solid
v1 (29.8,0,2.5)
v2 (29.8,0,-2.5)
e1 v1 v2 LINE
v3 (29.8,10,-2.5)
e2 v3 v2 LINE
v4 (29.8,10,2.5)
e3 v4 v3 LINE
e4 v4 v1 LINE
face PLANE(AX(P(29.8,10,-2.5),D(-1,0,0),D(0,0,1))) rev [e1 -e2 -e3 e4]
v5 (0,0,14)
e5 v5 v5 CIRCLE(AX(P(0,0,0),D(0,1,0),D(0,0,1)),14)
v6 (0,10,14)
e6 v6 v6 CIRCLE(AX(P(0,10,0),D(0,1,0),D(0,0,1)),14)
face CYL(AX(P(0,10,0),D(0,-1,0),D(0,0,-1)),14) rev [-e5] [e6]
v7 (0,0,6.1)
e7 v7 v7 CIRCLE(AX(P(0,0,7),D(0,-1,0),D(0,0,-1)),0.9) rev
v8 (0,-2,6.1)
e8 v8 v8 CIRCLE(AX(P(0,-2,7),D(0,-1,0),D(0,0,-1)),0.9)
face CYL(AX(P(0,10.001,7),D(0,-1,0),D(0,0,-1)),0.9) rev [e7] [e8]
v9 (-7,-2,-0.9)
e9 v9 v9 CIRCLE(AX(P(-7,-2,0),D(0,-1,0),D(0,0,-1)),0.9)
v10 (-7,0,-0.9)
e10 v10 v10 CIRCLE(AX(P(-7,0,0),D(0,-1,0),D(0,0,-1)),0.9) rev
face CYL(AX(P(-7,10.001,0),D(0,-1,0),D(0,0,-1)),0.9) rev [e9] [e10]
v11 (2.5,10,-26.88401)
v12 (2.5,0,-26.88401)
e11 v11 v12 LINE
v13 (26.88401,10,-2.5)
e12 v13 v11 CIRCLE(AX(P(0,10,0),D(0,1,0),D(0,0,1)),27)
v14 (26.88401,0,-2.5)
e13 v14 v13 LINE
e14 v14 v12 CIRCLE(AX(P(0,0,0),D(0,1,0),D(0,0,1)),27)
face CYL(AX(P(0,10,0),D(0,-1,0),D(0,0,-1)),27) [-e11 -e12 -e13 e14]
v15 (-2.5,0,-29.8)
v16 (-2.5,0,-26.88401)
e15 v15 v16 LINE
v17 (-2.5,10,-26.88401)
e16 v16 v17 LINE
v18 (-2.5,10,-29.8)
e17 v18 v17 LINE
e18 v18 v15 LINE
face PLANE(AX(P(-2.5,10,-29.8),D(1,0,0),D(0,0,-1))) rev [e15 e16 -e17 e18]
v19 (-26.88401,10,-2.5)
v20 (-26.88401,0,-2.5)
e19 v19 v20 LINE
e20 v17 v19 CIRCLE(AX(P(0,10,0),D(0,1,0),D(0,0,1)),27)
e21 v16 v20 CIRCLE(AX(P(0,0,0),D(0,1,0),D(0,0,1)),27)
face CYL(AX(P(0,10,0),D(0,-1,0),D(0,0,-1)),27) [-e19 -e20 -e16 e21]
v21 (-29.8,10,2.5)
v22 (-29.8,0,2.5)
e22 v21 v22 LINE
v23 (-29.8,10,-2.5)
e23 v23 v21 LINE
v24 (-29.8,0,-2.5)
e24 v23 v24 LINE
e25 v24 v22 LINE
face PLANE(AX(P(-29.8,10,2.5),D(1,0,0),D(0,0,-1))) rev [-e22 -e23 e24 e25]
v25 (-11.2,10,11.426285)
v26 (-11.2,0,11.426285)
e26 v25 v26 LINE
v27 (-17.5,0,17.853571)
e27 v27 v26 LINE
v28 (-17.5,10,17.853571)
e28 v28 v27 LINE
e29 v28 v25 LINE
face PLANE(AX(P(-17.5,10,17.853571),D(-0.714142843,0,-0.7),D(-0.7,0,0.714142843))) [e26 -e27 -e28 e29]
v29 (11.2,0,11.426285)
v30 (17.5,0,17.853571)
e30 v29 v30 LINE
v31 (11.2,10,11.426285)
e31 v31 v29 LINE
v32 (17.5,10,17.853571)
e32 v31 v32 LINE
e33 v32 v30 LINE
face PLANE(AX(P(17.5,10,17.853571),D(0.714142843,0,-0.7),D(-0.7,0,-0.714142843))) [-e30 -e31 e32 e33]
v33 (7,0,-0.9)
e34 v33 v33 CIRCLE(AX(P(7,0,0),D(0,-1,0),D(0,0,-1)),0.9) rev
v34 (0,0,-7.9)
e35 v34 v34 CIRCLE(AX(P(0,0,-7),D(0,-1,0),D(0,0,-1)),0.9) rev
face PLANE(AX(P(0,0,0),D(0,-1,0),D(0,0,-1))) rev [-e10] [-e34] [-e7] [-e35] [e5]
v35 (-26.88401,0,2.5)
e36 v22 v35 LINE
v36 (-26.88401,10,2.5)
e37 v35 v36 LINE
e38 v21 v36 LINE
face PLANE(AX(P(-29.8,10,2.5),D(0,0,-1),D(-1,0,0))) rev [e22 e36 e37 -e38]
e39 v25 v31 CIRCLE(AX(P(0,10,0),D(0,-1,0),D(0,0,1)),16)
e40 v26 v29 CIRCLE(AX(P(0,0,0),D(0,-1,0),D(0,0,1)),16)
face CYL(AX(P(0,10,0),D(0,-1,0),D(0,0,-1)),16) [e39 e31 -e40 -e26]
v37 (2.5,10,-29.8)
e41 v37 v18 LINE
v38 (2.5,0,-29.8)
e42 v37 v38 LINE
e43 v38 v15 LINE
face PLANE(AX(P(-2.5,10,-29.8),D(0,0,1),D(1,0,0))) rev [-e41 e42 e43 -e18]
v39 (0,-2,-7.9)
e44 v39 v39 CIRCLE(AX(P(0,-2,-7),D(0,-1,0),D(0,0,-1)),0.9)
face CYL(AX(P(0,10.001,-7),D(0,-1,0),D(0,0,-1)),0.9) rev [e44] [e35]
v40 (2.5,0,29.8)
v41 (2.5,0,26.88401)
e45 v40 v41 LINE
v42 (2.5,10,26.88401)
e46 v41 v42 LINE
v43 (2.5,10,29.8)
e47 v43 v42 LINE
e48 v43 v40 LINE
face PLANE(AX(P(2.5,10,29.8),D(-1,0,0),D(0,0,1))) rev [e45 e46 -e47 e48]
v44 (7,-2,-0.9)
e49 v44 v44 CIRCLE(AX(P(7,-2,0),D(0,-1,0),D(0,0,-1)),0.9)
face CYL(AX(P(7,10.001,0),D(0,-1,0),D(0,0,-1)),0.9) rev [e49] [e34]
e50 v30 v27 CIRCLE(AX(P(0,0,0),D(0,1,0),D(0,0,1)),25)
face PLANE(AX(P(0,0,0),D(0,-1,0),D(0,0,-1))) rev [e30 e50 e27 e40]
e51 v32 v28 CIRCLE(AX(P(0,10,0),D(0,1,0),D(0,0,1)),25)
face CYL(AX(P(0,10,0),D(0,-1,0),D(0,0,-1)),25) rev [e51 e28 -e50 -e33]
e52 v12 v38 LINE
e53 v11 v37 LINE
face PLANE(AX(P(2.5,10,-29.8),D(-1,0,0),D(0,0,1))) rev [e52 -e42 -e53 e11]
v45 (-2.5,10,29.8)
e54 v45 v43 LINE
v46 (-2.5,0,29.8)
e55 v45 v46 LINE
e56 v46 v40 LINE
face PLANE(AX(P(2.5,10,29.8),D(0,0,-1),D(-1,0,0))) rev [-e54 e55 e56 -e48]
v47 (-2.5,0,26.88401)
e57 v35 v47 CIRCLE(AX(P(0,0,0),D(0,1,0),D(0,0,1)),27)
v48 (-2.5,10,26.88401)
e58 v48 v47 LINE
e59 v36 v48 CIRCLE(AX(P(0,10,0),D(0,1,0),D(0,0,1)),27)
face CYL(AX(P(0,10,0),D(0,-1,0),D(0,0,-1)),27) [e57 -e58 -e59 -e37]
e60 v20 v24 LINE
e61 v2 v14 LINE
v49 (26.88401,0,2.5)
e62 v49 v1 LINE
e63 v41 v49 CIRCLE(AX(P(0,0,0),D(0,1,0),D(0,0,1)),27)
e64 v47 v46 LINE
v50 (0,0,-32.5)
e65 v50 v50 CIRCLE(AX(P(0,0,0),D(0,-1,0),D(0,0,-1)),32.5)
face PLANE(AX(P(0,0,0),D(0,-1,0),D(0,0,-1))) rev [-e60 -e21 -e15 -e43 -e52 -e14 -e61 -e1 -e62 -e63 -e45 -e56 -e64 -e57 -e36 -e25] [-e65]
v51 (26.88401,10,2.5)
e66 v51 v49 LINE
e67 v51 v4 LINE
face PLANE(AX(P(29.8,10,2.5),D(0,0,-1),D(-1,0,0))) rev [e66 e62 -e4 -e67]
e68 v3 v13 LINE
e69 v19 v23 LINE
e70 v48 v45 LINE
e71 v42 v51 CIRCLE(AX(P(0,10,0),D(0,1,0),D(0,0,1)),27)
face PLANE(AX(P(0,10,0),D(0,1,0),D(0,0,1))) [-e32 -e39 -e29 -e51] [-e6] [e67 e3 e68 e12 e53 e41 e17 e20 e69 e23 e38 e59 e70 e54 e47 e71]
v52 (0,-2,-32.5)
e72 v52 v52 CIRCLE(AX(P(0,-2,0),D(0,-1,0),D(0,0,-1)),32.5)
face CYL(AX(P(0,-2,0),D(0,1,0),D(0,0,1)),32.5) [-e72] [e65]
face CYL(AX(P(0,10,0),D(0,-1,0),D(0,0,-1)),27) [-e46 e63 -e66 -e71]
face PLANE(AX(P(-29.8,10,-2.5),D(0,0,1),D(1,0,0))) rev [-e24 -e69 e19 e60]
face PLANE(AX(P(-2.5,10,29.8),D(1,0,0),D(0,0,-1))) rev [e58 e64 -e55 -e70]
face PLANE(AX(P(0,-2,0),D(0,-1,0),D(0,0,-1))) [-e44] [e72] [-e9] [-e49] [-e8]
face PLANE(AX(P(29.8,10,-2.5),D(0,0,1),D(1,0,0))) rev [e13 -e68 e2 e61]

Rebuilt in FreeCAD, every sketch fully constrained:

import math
import FreeCAD as App
import Part
import Sketcher

V = App.Vector
Q = App.Units.Quantity


def add_polygon(sketch, points):
    """Adds a closed chain of lines whose ends are joined by coincident constraints."""
    first, n = sketch.GeometryCount, len(points)
    for a, b in zip(points, points[1:] + points[:1]):
        sketch.addGeometry(Part.LineSegment(App.Vector(*a, 0), App.Vector(*b, 0)), False)
    for i in range(n):
        sketch.addConstraint(Sketcher.Constraint("Coincident", first + i, 2, first + (i + 1) % n, 1))

doc = App.newDocument("Part")
body = doc.addObject("PartDesign::Body", "Body")

sketch1 = body.newObject("Sketcher::SketchObject", "Sketch")
sketch1.AttachmentSupport = (doc.getObject("XZ_Plane"), [""])
sketch1.MapMode = "FlatFace"
sketch1.addGeometry([
    Part.Circle(V(0, 0, 0), V(0, 0, 1), 27),
    Part.LineSegment(V(-11, 11, 0), V(-18, 18, 0)),
    Part.ArcOfCircle(Part.Circle(V(0, 0, 0), V(0, 0, 1), 25), math.radians(134), math.radians(406)),
    Part.LineSegment(V(18, 18, 0), V(11, 11, 0)),
    Part.ArcOfCircle(Part.Circle(V(0, 0, 0), V(0, 0, 1), 16), math.radians(134), math.radians(406)),
    Part.Circle(V(0, 0, 0), V(0, 0, 1), 14),
], False)
sketch1.addConstraint([
    Sketcher.Constraint("Coincident", 1, 2, 2, 1),
    Sketcher.Constraint("Coincident", 2, 2, 3, 1),
    Sketcher.Constraint("Coincident", 3, 2, 4, 2),
    Sketcher.Constraint("Coincident", 4, 1, 1, 1),
    Sketcher.Constraint("Coincident", 0, 3, -1, 1),
    Sketcher.Constraint("Coincident", 2, 3, -1, 1),
    Sketcher.Constraint("Coincident", 4, 3, -1, 1),
    Sketcher.Constraint("Coincident", 5, 3, -1, 1),
    Sketcher.Constraint("Horizontal", 1, 2, 2, 2),
    Sketcher.Constraint("Horizontal", 3, 2, 4, 1),
    Sketcher.Constraint("Diameter", 0, Q("54 mm")),
    Sketcher.Constraint("Diameter", 5, Q("28 mm")),
    Sketcher.Constraint("Radius", 2, Q("25 mm")),
    Sketcher.Constraint("Radius", 4, Q("16 mm")),
    Sketcher.Constraint("DistanceX", 1, 2, 2, 2, Q("35 mm")),
    Sketcher.Constraint("DistanceX", -1, 1, 3, 2, Q("11.2 mm")),
])
pad1 = body.newObject("PartDesign::Pad", "Pad")
pad1.Profile = sketch1
pad1.Length = 10
pad1.Reversed = True

sketch2 = body.newObject("Sketcher::SketchObject", "Sketch001")
sketch2.AttachmentSupport = (doc.getObject("XZ_Plane"), [""])
sketch2.MapMode = "FlatFace"
sketch2.addGeometry(Part.Circle(V(0, 0, 0), V(0, 0, 1), 32), False)
sketch2.addConstraint([
    Sketcher.Constraint("Coincident", 0, 3, -1, 1),
    Sketcher.Constraint("Diameter", 0, Q("65 mm")),
])
pad2 = body.newObject("PartDesign::Pad", "Pad001")
pad2.Profile = sketch2
pad2.Length = 2

sketch3 = body.newObject("Sketcher::SketchObject", "Sketch002")
sketch3.AttachmentSupport = (doc.getObject("XZ_Plane"), [""])
sketch3.MapMode = "FlatFace"
add_polygon(sketch3, [(-2.5, -29.8), (-2.5, -25.4), (2.5, -25.4), (2.5, -29.8)])
add_polygon(sketch3, [(25.4, -2.5), (25.4, 2.5), (29.8, 2.5), (29.8, -2.5)])
add_polygon(sketch3, [(-2.5, 25.4), (-2.5, 29.8), (2.5, 29.8), (2.5, 25.4)])
add_polygon(sketch3, [(-29.8, -2.5), (-29.8, 2.5), (-25.4, 2.5), (-25.4, -2.5)])
sketch3.addConstraint([
    Sketcher.Constraint("Vertical", 0),
    Sketcher.Constraint("Horizontal", 1),
    Sketcher.Constraint("Vertical", 2),
    Sketcher.Constraint("Horizontal", 3),
    Sketcher.Constraint("Vertical", 4),
    Sketcher.Constraint("Horizontal", 5),
    Sketcher.Constraint("Vertical", 6),
    Sketcher.Constraint("Horizontal", 7),
    Sketcher.Constraint("Vertical", 8),
    Sketcher.Constraint("Horizontal", 9),
    Sketcher.Constraint("Vertical", 10),
    Sketcher.Constraint("Horizontal", 11),
    Sketcher.Constraint("Vertical", 12),
    Sketcher.Constraint("Horizontal", 13),
    Sketcher.Constraint("Vertical", 14),
    Sketcher.Constraint("Horizontal", 15),
    Sketcher.Constraint("Symmetric", 2, 2, 8, 2, -1, 1),
    Sketcher.Constraint("Symmetric", 0, 2, 10, 2, -1, 1),
    Sketcher.Constraint("Symmetric", 6, 2, 12, 2, -1, 1),
    Sketcher.Constraint("Symmetric", 4, 2, 14, 2, -1, 1),
    Sketcher.Constraint("Horizontal", 5, 2, 12, 2),
    Sketcher.Constraint("Vertical", 3, 2, 8, 2),
    Sketcher.Constraint("Equal", 15, 0),
    Sketcher.Constraint("Equal", 11, 4),
    Sketcher.Constraint("DistanceX", 1, 1, 1, 2, Q("5 mm")),
    Sketcher.Constraint("DistanceY", 2, 2, -1, 1, Q("29.8 mm")),
    Sketcher.Constraint("DistanceX", -1, 1, 5, 2, Q("29.8 mm")),
    Sketcher.Constraint("DistanceX", 5, 1, 5, 2, Q("4.396773 mm")),
])
pad3 = body.newObject("PartDesign::Pad", "Pad002")
pad3.Profile = sketch3
pad3.Length = 10
pad3.Reversed = True

sketch4 = body.newObject("Sketcher::SketchObject", "Sketch003")
sketch4.AttachmentSupport = (doc.getObject("XZ_Plane"), [""])
sketch4.MapMode = "FlatFace"
sketch4.AttachmentOffset = App.Placement(V(0, 0, 2), App.Rotation())
sketch4.addGeometry(Part.Circle(V(0, -7, 0), V(0, 0, 1), 0.9), False)
sketch4.addConstraint([
    Sketcher.Constraint("PointOnObject", 0, 3, -2),
    Sketcher.Constraint("Diameter", 0, Q("1.8 mm")),
    Sketcher.Constraint("DistanceY", 0, 3, -1, 1, Q("7 mm")),
])
pocket1 = body.newObject("PartDesign::Pocket", "Pocket")
pocket1.Profile = sketch4
pocket1.Type = "UpToFirst"

sketch5 = body.newObject("Sketcher::SketchObject", "Sketch004")
sketch5.AttachmentSupport = (doc.getObject("XZ_Plane"), [""])
sketch5.MapMode = "FlatFace"
sketch5.AttachmentOffset = App.Placement(V(0, 0, 2), App.Rotation())
sketch5.addGeometry(Part.Circle(V(-7, 0, 0), V(0, 0, 1), 0.9), False)
sketch5.addConstraint([
    Sketcher.Constraint("PointOnObject", 0, 3, -1),
    Sketcher.Constraint("Diameter", 0, Q("1.8 mm")),
    Sketcher.Constraint("DistanceX", 0, 3, -1, 1, Q("7 mm")),
])
pocket2 = body.newObject("PartDesign::Pocket", "Pocket001")
pocket2.Profile = sketch5
pocket2.Type = "UpToFirst"

sketch6 = body.newObject("Sketcher::SketchObject", "Sketch005")
sketch6.AttachmentSupport = (doc.getObject("XZ_Plane"), [""])
sketch6.MapMode = "FlatFace"
sketch6.AttachmentOffset = App.Placement(V(0, 0, 2), App.Rotation())
sketch6.addGeometry(Part.Circle(V(0, 7, 0), V(0, 0, 1), 0.9), False)
sketch6.addConstraint([
    Sketcher.Constraint("PointOnObject", 0, 3, -2),
    Sketcher.Constraint("Diameter", 0, Q("1.8 mm")),
    Sketcher.Constraint("DistanceY", -1, 1, 0, 3, Q("7 mm")),
])
pocket3 = body.newObject("PartDesign::Pocket", "Pocket002")
pocket3.Profile = sketch6
pocket3.Type = "UpToFirst"

sketch7 = body.newObject("Sketcher::SketchObject", "Sketch006")
sketch7.AttachmentSupport = (doc.getObject("XZ_Plane"), [""])
sketch7.MapMode = "FlatFace"
sketch7.AttachmentOffset = App.Placement(V(0, 0, 2), App.Rotation())
sketch7.addGeometry(Part.Circle(V(7, 0, 0), V(0, 0, 1), 0.9), False)
sketch7.addConstraint([
    Sketcher.Constraint("PointOnObject", 0, 3, -1),
    Sketcher.Constraint("Diameter", 0, Q("1.8 mm")),
    Sketcher.Constraint("DistanceX", -1, 1, 0, 3, Q("7 mm")),
])
pocket4 = body.newObject("PartDesign::Pocket", "Pocket003")
pocket4.Profile = sketch7
pocket4.Type = "UpToFirst"

doc.recompute()
